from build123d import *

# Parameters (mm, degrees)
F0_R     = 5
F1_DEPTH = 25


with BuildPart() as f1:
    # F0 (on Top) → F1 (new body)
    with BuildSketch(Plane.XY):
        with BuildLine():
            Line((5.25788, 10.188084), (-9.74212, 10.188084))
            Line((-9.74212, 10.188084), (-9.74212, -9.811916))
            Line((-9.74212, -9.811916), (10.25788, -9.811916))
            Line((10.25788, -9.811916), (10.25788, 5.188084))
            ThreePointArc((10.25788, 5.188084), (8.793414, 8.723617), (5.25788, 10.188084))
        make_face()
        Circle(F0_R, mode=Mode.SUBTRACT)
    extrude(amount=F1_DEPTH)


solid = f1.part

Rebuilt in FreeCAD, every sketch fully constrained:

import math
import FreeCAD as App
import Part
import Sketcher

V = App.Vector
Q = App.Units.Quantity

doc = App.newDocument("Part")
body = doc.addObject("PartDesign::Body", "Body")

# Sketch on XY plane
sketch1 = doc.addObject("Sketcher::SketchObject", "Sketch")
body.addObject(sketch1)
sketch1.AttachmentSupport = (doc.XY_Plane, [""])
sketch1.MapMode = "FlatFace"
sketch1.addGeometry(Part.LineSegment(V(5, 10, 0), V(-10, 10, 0)), False)
sketch1.addGeometry(Part.LineSegment(V(-10, 10, 0), V(-10, -10, 0)), False)
sketch1.addGeometry(Part.LineSegment(V(-10, -10, 0), V(10, -10, 0)), False)
sketch1.addGeometry(Part.LineSegment(V(10, -10, 0), V(10, 5, 0)), False)
sketch1.addGeometry(Part.ArcOfCircle(Part.Circle(V(5, 5, 0), V(0, 0, 1), 5), math.radians(0), math.radians(90)), False)
sketch1.addGeometry(Part.Circle(V(0, 0, 0), V(0, 0, 1), 5), False)
sketch1.addConstraint(Sketcher.Constraint("Coincident", 0, 2, 1, 1))
sketch1.addConstraint(Sketcher.Constraint("Coincident", 1, 2, 2, 1))
sketch1.addConstraint(Sketcher.Constraint("Coincident", 2, 2, 3, 1))
sketch1.addConstraint(Sketcher.Constraint("Tangent", 3, 2, 4, 1))
sketch1.addConstraint(Sketcher.Constraint("Tangent", 4, 2, 0, 1))
sketch1.addConstraint(Sketcher.Constraint("Horizontal", 0))
sketch1.addConstraint(Sketcher.Constraint("Vertical", 1))
sketch1.addConstraint(Sketcher.Constraint("Horizontal", 2))
sketch1.addConstraint(Sketcher.Constraint("Vertical", 3))
sketch1.addConstraint(Sketcher.Constraint("Coincident", 5, 3, -1, 1))
sketch1.addConstraint(Sketcher.Constraint("Equal", 4, 5))
sketch1.addConstraint(Sketcher.Constraint("Equal", 2, 1))
sketch1.addConstraint(Sketcher.Constraint("Diameter", 5, Q("10 mm")))
sketch1.addConstraint(Sketcher.Constraint("DistanceX", 0, 2, 0, 1, Q("15 mm")))
sketch1.addConstraint(Sketcher.Constraint("DistanceX", -1, 1, 4, 3, Q("5.257879 mm")))
sketch1.addConstraint(Sketcher.Constraint("DistanceY", -1, 1, 4, 3, Q("5.188083 mm")))
pad1 = doc.addObject("PartDesign::Pad", "Pad")
body.addObject(pad1)
pad1.Profile = sketch1
pad1.Length = 25

doc.recompute()
